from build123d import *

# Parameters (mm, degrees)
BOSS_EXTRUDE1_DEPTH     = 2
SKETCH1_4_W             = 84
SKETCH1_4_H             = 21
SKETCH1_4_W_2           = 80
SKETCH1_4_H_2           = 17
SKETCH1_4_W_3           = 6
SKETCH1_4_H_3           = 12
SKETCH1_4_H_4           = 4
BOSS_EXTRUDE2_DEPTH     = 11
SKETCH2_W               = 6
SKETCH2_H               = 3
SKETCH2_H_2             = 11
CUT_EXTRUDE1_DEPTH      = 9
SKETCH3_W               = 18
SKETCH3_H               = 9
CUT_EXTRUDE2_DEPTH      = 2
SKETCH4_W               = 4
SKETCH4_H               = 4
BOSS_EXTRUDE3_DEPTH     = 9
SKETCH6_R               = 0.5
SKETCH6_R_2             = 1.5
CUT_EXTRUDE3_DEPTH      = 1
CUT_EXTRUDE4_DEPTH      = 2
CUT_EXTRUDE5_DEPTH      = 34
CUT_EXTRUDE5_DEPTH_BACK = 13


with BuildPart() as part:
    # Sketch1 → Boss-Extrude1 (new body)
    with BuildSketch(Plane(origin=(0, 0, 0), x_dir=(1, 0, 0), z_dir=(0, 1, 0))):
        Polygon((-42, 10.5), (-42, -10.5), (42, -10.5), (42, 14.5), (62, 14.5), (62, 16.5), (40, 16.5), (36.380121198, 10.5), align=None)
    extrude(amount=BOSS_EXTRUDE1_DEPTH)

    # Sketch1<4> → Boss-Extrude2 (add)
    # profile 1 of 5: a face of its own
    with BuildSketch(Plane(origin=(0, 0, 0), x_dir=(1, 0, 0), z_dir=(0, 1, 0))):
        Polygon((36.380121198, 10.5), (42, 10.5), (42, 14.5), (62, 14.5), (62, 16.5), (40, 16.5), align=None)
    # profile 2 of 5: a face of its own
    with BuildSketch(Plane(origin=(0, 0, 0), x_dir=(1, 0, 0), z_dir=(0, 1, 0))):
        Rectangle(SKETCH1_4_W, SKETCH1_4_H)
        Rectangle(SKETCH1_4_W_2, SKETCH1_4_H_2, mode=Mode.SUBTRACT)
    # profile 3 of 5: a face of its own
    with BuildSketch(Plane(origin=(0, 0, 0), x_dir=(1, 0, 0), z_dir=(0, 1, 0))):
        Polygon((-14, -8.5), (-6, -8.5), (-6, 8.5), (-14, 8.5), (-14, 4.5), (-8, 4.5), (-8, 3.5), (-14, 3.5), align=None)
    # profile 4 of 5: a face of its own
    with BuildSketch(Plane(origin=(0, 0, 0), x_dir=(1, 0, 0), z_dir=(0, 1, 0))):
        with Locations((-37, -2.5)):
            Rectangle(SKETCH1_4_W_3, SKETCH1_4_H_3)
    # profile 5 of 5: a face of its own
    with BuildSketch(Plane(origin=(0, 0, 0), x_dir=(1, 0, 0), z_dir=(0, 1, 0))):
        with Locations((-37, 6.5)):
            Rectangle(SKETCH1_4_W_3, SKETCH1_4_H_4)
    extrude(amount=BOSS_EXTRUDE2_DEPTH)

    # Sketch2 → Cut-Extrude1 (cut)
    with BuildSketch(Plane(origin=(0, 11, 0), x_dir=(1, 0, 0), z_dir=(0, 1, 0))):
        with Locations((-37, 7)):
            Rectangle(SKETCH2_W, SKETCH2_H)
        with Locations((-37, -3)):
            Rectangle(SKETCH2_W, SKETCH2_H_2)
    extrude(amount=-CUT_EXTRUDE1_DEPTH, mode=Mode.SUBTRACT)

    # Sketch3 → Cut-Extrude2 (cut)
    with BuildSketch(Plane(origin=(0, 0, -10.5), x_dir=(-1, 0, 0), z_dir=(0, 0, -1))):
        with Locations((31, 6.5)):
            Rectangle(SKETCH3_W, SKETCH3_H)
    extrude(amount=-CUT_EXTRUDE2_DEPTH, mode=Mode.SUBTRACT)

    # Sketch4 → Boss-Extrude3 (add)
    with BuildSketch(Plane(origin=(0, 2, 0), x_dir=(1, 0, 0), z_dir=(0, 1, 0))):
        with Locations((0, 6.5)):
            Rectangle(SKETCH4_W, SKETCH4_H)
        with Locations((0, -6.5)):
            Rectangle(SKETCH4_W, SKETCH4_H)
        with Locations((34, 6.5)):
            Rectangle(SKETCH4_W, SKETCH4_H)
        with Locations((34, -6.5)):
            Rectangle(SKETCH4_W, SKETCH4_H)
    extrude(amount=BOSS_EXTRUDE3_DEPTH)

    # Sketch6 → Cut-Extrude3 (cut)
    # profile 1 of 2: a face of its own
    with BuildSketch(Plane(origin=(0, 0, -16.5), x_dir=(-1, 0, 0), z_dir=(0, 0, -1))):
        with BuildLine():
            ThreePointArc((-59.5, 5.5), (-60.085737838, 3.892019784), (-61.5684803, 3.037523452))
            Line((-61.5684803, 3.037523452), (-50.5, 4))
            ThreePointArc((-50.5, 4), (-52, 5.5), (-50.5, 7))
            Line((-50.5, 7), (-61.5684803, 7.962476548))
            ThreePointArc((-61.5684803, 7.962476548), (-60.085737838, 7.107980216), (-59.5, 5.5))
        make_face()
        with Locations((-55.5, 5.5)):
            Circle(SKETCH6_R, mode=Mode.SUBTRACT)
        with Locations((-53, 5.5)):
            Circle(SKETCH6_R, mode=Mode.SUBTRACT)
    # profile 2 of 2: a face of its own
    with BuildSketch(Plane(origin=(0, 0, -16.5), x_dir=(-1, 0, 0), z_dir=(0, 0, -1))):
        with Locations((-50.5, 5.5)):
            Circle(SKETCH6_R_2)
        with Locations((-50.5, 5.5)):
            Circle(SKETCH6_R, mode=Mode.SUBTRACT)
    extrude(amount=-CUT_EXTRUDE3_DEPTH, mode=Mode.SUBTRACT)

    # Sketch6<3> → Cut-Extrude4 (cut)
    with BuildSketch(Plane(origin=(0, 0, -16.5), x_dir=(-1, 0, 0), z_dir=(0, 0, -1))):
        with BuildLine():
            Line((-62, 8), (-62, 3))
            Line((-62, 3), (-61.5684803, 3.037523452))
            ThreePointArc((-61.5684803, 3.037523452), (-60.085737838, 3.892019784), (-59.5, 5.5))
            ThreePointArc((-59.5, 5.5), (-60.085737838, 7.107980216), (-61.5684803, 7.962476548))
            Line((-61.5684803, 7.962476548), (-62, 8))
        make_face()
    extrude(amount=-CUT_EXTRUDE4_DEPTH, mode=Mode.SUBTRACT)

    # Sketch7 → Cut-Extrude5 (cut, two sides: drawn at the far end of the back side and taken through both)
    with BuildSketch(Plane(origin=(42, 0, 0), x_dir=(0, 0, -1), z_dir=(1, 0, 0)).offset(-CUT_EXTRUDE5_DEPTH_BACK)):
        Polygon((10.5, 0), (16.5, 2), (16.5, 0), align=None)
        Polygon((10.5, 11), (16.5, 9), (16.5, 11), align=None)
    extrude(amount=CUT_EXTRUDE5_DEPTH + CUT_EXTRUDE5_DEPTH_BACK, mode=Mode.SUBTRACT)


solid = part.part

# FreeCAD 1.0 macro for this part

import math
import FreeCAD as App
import Part
import Sketcher

V = App.Vector
Q = App.Units.Quantity


def add_polygon(sketch, points):
    """Adds a closed chain of lines whose ends are joined by coincident constraints."""
    first, n = sketch.GeometryCount, len(points)
    for a, b in zip(points, points[1:] + points[:1]):
        sketch.addGeometry(Part.LineSegment(App.Vector(*a, 0), App.Vector(*b, 0)), False)
    for i in range(n):
        sketch.addConstraint(Sketcher.Constraint("Coincident", first + i, 2, first + (i + 1) % n, 1))

doc = App.newDocument("Part")
params = doc.addObject("Spreadsheet::Sheet", "Params")
for row, (alias, value) in enumerate([
    ("sketch1_width", "84 mm"),
    ("sketch1_width2", "20 mm"),
    ("sketch1_width3", "22 mm"),
    ("sketch1_height", "21 mm"),
    ("sketch1_height2", "25 mm"),
    ("pad1_length", "2 mm"),
    ("sketch2_width", "20 mm"),
    ("sketch2_width2", "22 mm"),
    ("sketch2_width3", "84 mm"),
    ("sketch2_width4", "6 mm"),
    ("sketch2_width5", "46 mm"),
    ("pad2_length", "11 mm"),
    ("sketch3_width", "6 mm"),
    ("sketch3_height", "3 mm"),
    ("sketch3_height2", "11 mm"),
    ("pocket1_length", "9 mm"),
    ("sketch4_width", "18 mm"),
    ("sketch4_height", "9 mm"),
    ("pocket2_length", "2 mm"),
    ("sketch5_width", "4 mm"),
    ("pad3_length", "9 mm"),
    ("sketch6_diameter", "1 mm"),
    ("sketch6_radius", "2.5 mm"),
    ("sketch6_radius2", "1.5 mm"),
    ("pocket3_length", "1 mm"),
    ("sketch7_radius", "2.5 mm"),
    ("sketch7_height", "5 mm"),
    ("pocket4_length", "2 mm"),
    ("sketch8_width", "2 mm"),
    ("sketch8_height", "6 mm"),
], start=1):
    params.set(f"A{row}", alias)
    params.set(f"B{row}", "=" + value)
    params.setAlias(f"B{row}", alias)

body = doc.addObject("PartDesign::Body", "Body")

# Sketch on XZ plane
sketch1 = body.newObject("Sketcher::SketchObject", "Sketch")
sketch1.AttachmentSupport = (doc.getObject("XZ_Plane"), [""])
sketch1.MapMode = "FlatFace"
add_polygon(sketch1, [(-42, -10.5), (-42, 10.5), (42, 10.5), (42, -14.5), (62, -14.5), (62, -16.5), (40, -16.5), (36.4, -10.5)])  # lines 0-7
sketch1.addConstraint(Sketcher.Constraint("Vertical", 0))
sketch1.addConstraint(Sketcher.Constraint("Horizontal", 1))
sketch1.addConstraint(Sketcher.Constraint("Vertical", 2))
sketch1.addConstraint(Sketcher.Constraint("Horizontal", 3))
sketch1.addConstraint(Sketcher.Constraint("Vertical", 4))
sketch1.addConstraint(Sketcher.Constraint("Horizontal", 5))
sketch1.addConstraint(Sketcher.Constraint("Horizontal", 7))
sketch1.addConstraint(Sketcher.Constraint("Symmetric", 1, 2, 7, 2, -1, 1))
sketch1.addConstraint(Sketcher.Constraint("DistanceX", 1, 1, 1, 2, Q("84 mm")))
sketch1.addConstraint(Sketcher.Constraint("DistanceX", 3, 1, 3, 2, Q("20 mm")))
sketch1.addConstraint(Sketcher.Constraint("DistanceX", 5, 2, 5, 1, Q("22 mm")))
sketch1.addConstraint(Sketcher.Constraint("DistanceY", 0, 1, 0, 2, Q("21 mm")))
sketch1.addConstraint(Sketcher.Constraint("DistanceY", 2, 2, 2, 1, Q("25 mm")))
sketch1.addConstraint(Sketcher.Constraint("DistanceY", 4, 2, 4, 1, Q("2 mm")))
sketch1.addConstraint(Sketcher.Constraint("DistanceX", 7, 2, 7, 1, Q("78.380121 mm")))
sketch1.setExpression("Constraints[16]", "Params.sketch1_width")
sketch1.setExpression("Constraints[17]", "Params.sketch1_width2")
sketch1.setExpression("Constraints[18]", "Params.sketch1_width3")
sketch1.setExpression("Constraints[19]", "Params.sketch1_height")
sketch1.setExpression("Constraints[20]", "Params.sketch1_height2")
pad1 = body.newObject("PartDesign::Pad", "Pad")
pad1.Profile = sketch1
pad1.setExpression("Length", "Params.pad1_length")
pad1.Reversed = True

# Sketch on XZ plane
sketch2 = body.newObject("Sketcher::SketchObject", "Sketch001")
sketch2.AttachmentSupport = (doc.getObject("XZ_Plane"), [""])
sketch2.MapMode = "FlatFace"
add_polygon(sketch2, [(42, -14.5), (62, -14.5), (62, -16.5), (40, -16.5), (36.4, -10.5), (-42, -10.5), (-42, 10.5), (42, 10.5)])  # lines 0-7
add_polygon(sketch2, [(-14, 8.5), (-34, 8.5), (-34, -3.5), (-40, -3.5), (-40, -4.5), (-34, -4.5), (-34, -8.5), (-14, -8.5), (-14, -4.5), (-8, -4.5), (-8, -3.5), (-14, -3.5)])  # lines 8-19
add_polygon(sketch2, [(40, 8.5), (-6, 8.5), (-6, -8.5), (40, -8.5)])  # lines 20-23
sketch2.addConstraint(Sketcher.Constraint("Horizontal", 0))
sketch2.addConstraint(Sketcher.Constraint("Vertical", 1))
sketch2.addConstraint(Sketcher.Constraint("Horizontal", 2))
sketch2.addConstraint(Sketcher.Constraint("Horizontal", 4))
sketch2.addConstraint(Sketcher.Constraint("Vertical", 5))
sketch2.addConstraint(Sketcher.Constraint("Horizontal", 6))
sketch2.addConstraint(Sketcher.Constraint("Vertical", 7))
sketch2.addConstraint(Sketcher.Constraint("Horizontal", 8))
sketch2.addConstraint(Sketcher.Constraint("Vertical", 9))
sketch2.addConstraint(Sketcher.Constraint("Horizontal", 10))
sketch2.addConstraint(Sketcher.Constraint("Vertical", 11))
sketch2.addConstraint(Sketcher.Constraint("Horizontal", 12))
sketch2.addConstraint(Sketcher.Constraint("Vertical", 13))
sketch2.addConstraint(Sketcher.Constraint("Horizontal", 14))
sketch2.addConstraint(Sketcher.Constraint("Vertical", 15))
sketch2.addConstraint(Sketcher.Constraint("Horizontal", 16))
sketch2.addConstraint(Sketcher.Constraint("Vertical", 17))
sketch2.addConstraint(Sketcher.Constraint("Horizontal", 18))
sketch2.addConstraint(Sketcher.Constraint("Vertical", 19))
sketch2.addConstraint(Sketcher.Constraint("Horizontal", 20))
sketch2.addConstraint(Sketcher.Constraint("Vertical", 21))
sketch2.addConstraint(Sketcher.Constraint("Horizontal", 22))
sketch2.addConstraint(Sketcher.Constraint("Vertical", 23))
sketch2.addConstraint(Sketcher.Constraint("Symmetric", 4, 2, 6, 2, -1, 1))
sketch2.addConstraint(Sketcher.Constraint("Symmetric", 8, 2, 13, 2, -1))
sketch2.addConstraint(Sketcher.Constraint("Horizontal", 12, 2, 15, 2))
sketch2.addConstraint(Sketcher.Constraint("Horizontal", 10, 2, 17, 2))
sketch2.addConstraint(Sketcher.Constraint("Horizontal", 19, 2, 20, 2))
sketch2.addConstraint(Sketcher.Constraint("Horizontal", 14, 2, 21, 2))
sketch2.addConstraint(Sketcher.Constraint("Vertical", 15, 2, 18, 2))
sketch2.addConstraint(Sketcher.Constraint("Vertical", 2, 2, 22, 2))
sketch2.addConstraint(Sketcher.Constraint("Equal", 0, 8))
sketch2.addConstraint(Sketcher.Constraint("Equal", 12, 16))
sketch2.addConstraint(Sketcher.Constraint("DistanceX", 0, 1, 0, 2, Q("20 mm")))
sketch2.addConstraint(Sketcher.Constraint("DistanceX", 2, 2, 2, 1, Q("22 mm")))
sketch2.addConstraint(Sketcher.Constraint("DistanceX", 6, 1, 6, 2, Q("84 mm")))
sketch2.addConstraint(Sketcher.Constraint("DistanceX", 10, 2, 10, 1, Q("6 mm")))
sketch2.addConstraint(Sketcher.Constraint("DistanceX", 20, 2, 20, 1, Q("46 mm")))
sketch2.addConstraint(Sketcher.Constraint("DistanceY", 1, 2, 1, 1, Q("2 mm")))
sketch2.addConstraint(Sketcher.Constraint("DistanceY", 5, 1, 5, 2, Q("21 mm")))
sketch2.addConstraint(Sketcher.Constraint("DistanceY", 7, 2, 7, 1, Q("25 mm")))
sketch2.addConstraint(Sketcher.Constraint("DistanceY", 9, 2, 9, 1, Q("12 mm")))
sketch2.addConstraint(Sketcher.Constraint("DistanceY", 11, 2, 11, 1, Q("1 mm")))
sketch2.addConstraint(Sketcher.Constraint("DistanceY", 13, 2, 13, 1, Q("4 mm")))
sketch2.addConstraint(Sketcher.Constraint("DistanceX", 8, 2, -1, 1, Q("34 mm")))
sketch2.addConstraint(Sketcher.Constraint("DistanceX", 4, 2, 4, 1, Q("78.380121 mm")))
sketch2.setExpression("Constraints[57]", "Params.sketch2_width")
sketch2.setExpression("Constraints[58]", "Params.sketch2_width2")
sketch2.setExpression("Constraints[59]", "Params.sketch2_width3")
sketch2.setExpression("Constraints[60]", "Params.sketch2_width4")
sketch2.setExpression("Constraints[61]", "Params.sketch2_width5")
pad2 = body.newObject("PartDesign::Pad", "Pad001")
pad2.Profile = sketch2
pad2.setExpression("Length", "Params.pad2_length")
pad2.Reversed = True

# Sketch on XZ plane
sketch3 = body.newObject("Sketcher::SketchObject", "Sketch002")
sketch3.AttachmentSupport = (doc.getObject("XZ_Plane"), [""])
sketch3.MapMode = "FlatFace"
sketch3.AttachmentOffset = App.Placement(V(0, 0, -11), App.Rotation())
add_polygon(sketch3, [(-40, -8.5), (-40, -5.5), (-34, -5.5), (-34, -8.5)])  # lines 0-3
add_polygon(sketch3, [(-40, -2.5), (-40, 8.5), (-34, 8.5), (-34, -2.5)])  # lines 4-7
sketch3.addConstraint(Sketcher.Constraint("Vertical", 0))
sketch3.addConstraint(Sketcher.Constraint("Horizontal", 1))
sketch3.addConstraint(Sketcher.Constraint("Vertical", 2))
sketch3.addConstraint(Sketcher.Constraint("Horizontal", 3))
sketch3.addConstraint(Sketcher.Constraint("Vertical", 4))
sketch3.addConstraint(Sketcher.Constraint("Horizontal", 5))
sketch3.addConstraint(Sketcher.Constraint("Vertical", 6))
sketch3.addConstraint(Sketcher.Constraint("Horizontal", 7))
sketch3.addConstraint(Sketcher.Constraint("Symmetric", 3, 2, 4, 2, -1))
sketch3.addConstraint(Sketcher.Constraint("Vertical", 2, 2, 5, 2))
sketch3.addConstraint(Sketcher.Constraint("DistanceX", 1, 1, 1, 2, Q("6 mm")))
sketch3.addConstraint(Sketcher.Constraint("DistanceY", 0, 1, 0, 2, Q("3 mm")))
sketch3.addConstraint(Sketcher.Constraint("DistanceY", 4, 1, 4, 2, Q("11 mm")))
sketch3.addConstraint(Sketcher.Constraint("DistanceX", 0, 2, -1, 1, Q("40 mm")))
sketch3.addConstraint(Sketcher.Constraint("DistanceY", 0, 2, 4, 2, Q("14 mm")))
sketch3.setExpression("Constraints[18]", "Params.sketch3_width")
sketch3.setExpression("Constraints[19]", "Params.sketch3_height")
sketch3.setExpression("Constraints[20]", "Params.sketch3_height2")
pocket1 = body.newObject("PartDesign::Pocket", "Pocket")
pocket1.Profile = sketch3
pocket1.setExpression("Length", "Params.pocket1_length")
pocket1.Reversed = True

# Sketch on XY plane
sketch4 = body.newObject("Sketcher::SketchObject", "Sketch003")
sketch4.AttachmentSupport = (doc.getObject("XY_Plane"), [""])
sketch4.MapMode = "FlatFace"
sketch4.AttachmentOffset = App.Placement(V(0, 0, -10.5), App.Rotation())
add_polygon(sketch4, [(-22, 11), (-22, 2), (-40, 2), (-40, 11)])  # lines 0-3
sketch4.addConstraint(Sketcher.Constraint("Vertical", 0))
sketch4.addConstraint(Sketcher.Constraint("Horizontal", 1))
sketch4.addConstraint(Sketcher.Constraint("Vertical", 2))
sketch4.addConstraint(Sketcher.Constraint("Horizontal", 3))
sketch4.addConstraint(Sketcher.Constraint("DistanceX", 1, 2, 1, 1, Q("18 mm")))
sketch4.addConstraint(Sketcher.Constraint("DistanceY", 0, 2, 0, 1, Q("9 mm")))
sketch4.addConstraint(Sketcher.Constraint("DistanceX", 0, 2, -1, 1, Q("22 mm")))
sketch4.addConstraint(Sketcher.Constraint("DistanceY", -1, 1, 0, 2, Q("2 mm")))
sketch4.setExpression("Constraints[8]", "Params.sketch4_width")
sketch4.setExpression("Constraints[9]", "Params.sketch4_height")
pocket2 = body.newObject("PartDesign::Pocket", "Pocket001")
pocket2.Profile = sketch4
pocket2.setExpression("Length", "Params.pocket2_length")
pocket2.Reversed = True

# Sketch on XZ plane
sketch5 = body.newObject("Sketcher::SketchObject", "Sketch004")
sketch5.AttachmentSupport = (doc.getObject("XZ_Plane"), [""])
sketch5.MapMode = "FlatFace"
sketch5.AttachmentOffset = App.Placement(V(0, 0, -2), App.Rotation())
add_polygon(sketch5, [(-2, -8.5), (-2, -4.5), (2, -4.5), (2, -8.5)])  # lines 0-3
add_polygon(sketch5, [(-2, 4.5), (-2, 8.5), (2, 8.5), (2, 4.5)])  # lines 4-7
add_polygon(sketch5, [(32, -8.5), (32, -4.5), (36, -4.5), (36, -8.5)])  # lines 8-11
add_polygon(sketch5, [(32, 4.5), (32, 8.5), (36, 8.5), (36, 4.5)])  # lines 12-15
sketch5.addConstraint(Sketcher.Constraint("Vertical", 0))
sketch5.addConstraint(Sketcher.Constraint("Horizontal", 1))
sketch5.addConstraint(Sketcher.Constraint("Vertical", 2))
sketch5.addConstraint(Sketcher.Constraint("Horizontal", 3))
sketch5.addConstraint(Sketcher.Constraint("Vertical", 4))
sketch5.addConstraint(Sketcher.Constraint("Horizontal", 5))
sketch5.addConstraint(Sketcher.Constraint("Vertical", 6))
sketch5.addConstraint(Sketcher.Constraint("Horizontal", 7))
sketch5.addConstraint(Sketcher.Constraint("Vertical", 8))
sketch5.addConstraint(Sketcher.Constraint("Horizontal", 9))
sketch5.addConstraint(Sketcher.Constraint("Vertical", 10))
sketch5.addConstraint(Sketcher.Constraint("Horizontal", 11))
sketch5.addConstraint(Sketcher.Constraint("Vertical", 12))
sketch5.addConstraint(Sketcher.Constraint("Horizontal", 13))
sketch5.addConstraint(Sketcher.Constraint("Vertical", 14))
sketch5.addConstraint(Sketcher.Constraint("Horizontal", 15))
sketch5.addConstraint(Sketcher.Constraint("Symmetric", 2, 2, 4, 2, -1, 1))
sketch5.addConstraint(Sketcher.Constraint("Symmetric", 0, 2, 6, 2, -1, 1))
sketch5.addConstraint(Sketcher.Constraint("Symmetric", 11, 2, 12, 2, -1))
sketch5.addConstraint(Sketcher.Constraint("Symmetric", 9, 2, 14, 2, -1))
sketch5.addConstraint(Sketcher.Constraint("Horizontal", 1, 2, 8, 2))
sketch5.addConstraint(Sketcher.Constraint("Horizontal", 3, 2, 10, 2))
sketch5.addConstraint(Sketcher.Constraint("Vertical", 3, 2, 4, 2))
sketch5.addConstraint(Sketcher.Constraint("Equal", 7, 9))
sketch5.addConstraint(Sketcher.Constraint("Equal", 15, 0))
sketch5.addConstraint(Sketcher.Constraint("DistanceX", 1, 1, 1, 2, Q("4 mm")))
sketch5.addConstraint(Sketcher.Constraint("DistanceX", -1, 1, 8, 2, Q("32 mm")))
sketch5.addConstraint(Sketcher.Constraint("DistanceY", 0, 2, 4, 2, Q("13 mm")))
sketch5.setExpression("Constraints[41]", "Params.sketch5_width")
pad3 = body.newObject("PartDesign::Pad", "Pad002")
pad3.Profile = sketch5
pad3.setExpression("Length", "Params.pad3_length")
pad3.Reversed = True

# Sketch on XY plane
sketch6 = body.newObject("Sketcher::SketchObject", "Sketch005")
sketch6.AttachmentSupport = (doc.getObject("XY_Plane"), [""])
sketch6.MapMode = "FlatFace"
sketch6.AttachmentOffset = App.Placement(V(0, 0, -16.5), App.Rotation())
sketch6.addGeometry(Part.ArcOfCircle(Part.Circle(V(62, 5.5, 0), V(0, 0, 1), 2.5), math.radians(180), math.radians(260)), False)
sketch6.addGeometry(Part.LineSegment(V(61.6, 3, 0), V(50.5, 4, 0)), False)
sketch6.addGeometry(Part.ArcOfCircle(Part.Circle(V(50.5, 5.5, 0), V(0, 0, 1), 1.5), math.radians(90), math.radians(270)), False)
sketch6.addGeometry(Part.LineSegment(V(50.5, 7, 0), V(61.6, 8, 0)), False)
sketch6.addGeometry(Part.ArcOfCircle(Part.Circle(V(62, 5.5, 0), V(0, 0, 1), 2.5), math.radians(100), math.radians(180)), False)
sketch6.addGeometry(Part.Circle(V(55.5, 5.5, 0), V(0, 0, 1), 0.5), False)
sketch6.addGeometry(Part.Circle(V(53, 5.5, 0), V(0, 0, 1), 0.5), False)
sketch6.addGeometry(Part.Circle(V(50.5, 5.5, 0), V(0, 0, 1), 0.5), False)
sketch6.addConstraint(Sketcher.Constraint("Coincident", 0, 2, 1, 1))
sketch6.addConstraint(Sketcher.Constraint("Coincident", 1, 2, 2, 2))
sketch6.addConstraint(Sketcher.Constraint("Coincident", 2, 1, 3, 1))
sketch6.addConstraint(Sketcher.Constraint("Coincident", 3, 2, 4, 1))
sketch6.addConstraint(Sketcher.Constraint("Tangent", 4, 2, 0, 1))
sketch6.addConstraint(Sketcher.Constraint("Coincident", 7, 3, 2, 3))
sketch6.addConstraint(Sketcher.Constraint("Equal", 0, 4))
sketch6.addConstraint(Sketcher.Constraint("Equal", 5, 6))
sketch6.addConstraint(Sketcher.Constraint("Equal", 6, 7))
sketch6.addConstraint(Sketcher.Constraint("Horizontal", 0, 3, 2, 3))
sketch6.addConstraint(Sketcher.Constraint("Horizontal", 4, 3, 5, 3))
sketch6.addConstraint(Sketcher.Constraint("Horizontal", 5, 3, 6, 3))
sketch6.addConstraint(Sketcher.Constraint("Horizontal", 7, 3, 4, 2))
sketch6.addConstraint(Sketcher.Constraint("Vertical", 7, 3, 1, 2))
sketch6.addConstraint(Sketcher.Constraint("Vertical", 1, 2, 2, 1))
sketch6.addConstraint(Sketcher.Constraint("Vertical", 0, 2, 3, 2))
sketch6.addConstraint(Sketcher.Constraint("Diameter", 5, Q("1 mm")))
sketch6.addConstraint(Sketcher.Constraint("Radius", 0, Q("2.5 mm")))
sketch6.addConstraint(Sketcher.Constraint("Radius", 2, Q("1.5 mm")))
sketch6.addConstraint(Sketcher.Constraint("DistanceX", -1, 1, 0, 3, Q("62 mm")))
sketch6.addConstraint(Sketcher.Constraint("DistanceX", -1, 1, 6, 3, Q("53 mm")))
sketch6.addConstraint(Sketcher.Constraint("DistanceY", -1, 1, 1, 2, Q("4 mm")))
sketch6.addConstraint(Sketcher.Constraint("DistanceX", 2, 3, 5, 3, Q("5 mm")))
sketch6.addConstraint(Sketcher.Constraint("DistanceX", 5, 3, 4, 2, Q("4 mm")))
sketch6.addConstraint(Sketcher.Constraint("Distance", 1, Q("11.110248 mm")))
sketch6.setExpression("Constraints[16]", "Params.sketch6_diameter")
sketch6.setExpression("Constraints[17]", "Params.sketch6_radius")
sketch6.setExpression("Constraints[18]", "Params.sketch6_radius2")
pocket3 = body.newObject("PartDesign::Pocket", "Pocket002")
pocket3.Profile = sketch6
pocket3.setExpression("Length", "Params.pocket3_length")
pocket3.Reversed = True

# Sketch on XY plane
sketch7 = body.newObject("Sketcher::SketchObject", "Sketch006")
sketch7.AttachmentSupport = (doc.getObject("XY_Plane"), [""])
sketch7.MapMode = "FlatFace"
sketch7.AttachmentOffset = App.Placement(V(0, 0, -16.5), App.Rotation())
sketch7.addGeometry(Part.LineSegment(V(62, 8, 0), V(62, 3, 0)), False)
sketch7.addGeometry(Part.LineSegment(V(62, 3, 0), V(61.57, 3.04, 0)), False)
sketch7.addGeometry(Part.ArcOfCircle(Part.Circle(V(62, 5.5, 0), V(0, 0, 1), 2.5), math.radians(180), math.radians(260)), False)
sketch7.addGeometry(Part.ArcOfCircle(Part.Circle(V(62, 5.5, 0), V(0, 0, 1), 2.5), math.radians(100), math.radians(180)), False)
sketch7.addGeometry(Part.LineSegment(V(61.57, 7.96, 0), V(62, 8, 0)), False)
sketch7.addConstraint(Sketcher.Constraint("Coincident", 0, 2, 1, 1))
sketch7.addConstraint(Sketcher.Constraint("Coincident", 1, 2, 2, 2))
sketch7.addConstraint(Sketcher.Constraint("Tangent", 2, 1, 3, 2))
sketch7.addConstraint(Sketcher.Constraint("Coincident", 3, 1, 4, 1))
sketch7.addConstraint(Sketcher.Constraint("Coincident", 4, 2, 0, 1))
sketch7.addConstraint(Sketcher.Constraint("Vertical", 0))
sketch7.addConstraint(Sketcher.Constraint("Equal", 2, 3))
sketch7.addConstraint(Sketcher.Constraint("Horizontal", 3, 3, 2, 1))
sketch7.addConstraint(Sketcher.Constraint("Vertical", 3, 3, 0, 2))
sketch7.addConstraint(Sketcher.Constraint("Vertical", 1, 2, 3, 1))
sketch7.addConstraint(Sketcher.Constraint("Equal", 1, 4))
sketch7.addConstraint(Sketcher.Constraint("Radius", 2, Q("2.5 mm")))
sketch7.addConstraint(Sketcher.Constraint("DistanceY", 0, 2, 0, 1, Q("5 mm")))
sketch7.addConstraint(Sketcher.Constraint("DistanceX", -1, 1, 2, 3, Q("62 mm")))
sketch7.addConstraint(Sketcher.Constraint("DistanceY", -1, 1, 0, 2, Q("3 mm")))
sketch7.addConstraint(Sketcher.Constraint("Distance", 1, Q("0.433148 mm")))
sketch7.setExpression("Constraints[11]", "Params.sketch7_radius")
sketch7.setExpression("Constraints[12]", "Params.sketch7_height")
pocket4 = body.newObject("PartDesign::Pocket", "Pocket003")
pocket4.Profile = sketch7
pocket4.setExpression("Length", "Params.pocket4_length")
pocket4.Reversed = True

# Sketch on YZ plane
sketch8 = body.newObject("Sketcher::SketchObject", "Sketch007")
sketch8.AttachmentSupport = (doc.getObject("YZ_Plane"), [""])
sketch8.MapMode = "FlatFace"
sketch8.AttachmentOffset = App.Placement(V(0, 0, 42), App.Rotation())
add_polygon(sketch8, [(2, -16.5), (0, -10.5), (0, -16.5)])  # lines 0-2
add_polygon(sketch8, [(11, -10.5), (9, -16.5), (11, -16.5)])  # lines 3-5
sketch8.addConstraint(Sketcher.Constraint("Vertical", 1))
sketch8.addConstraint(Sketcher.Constraint("Horizontal", 2))
sketch8.addConstraint(Sketcher.Constraint("Horizontal", 4))
sketch8.addConstraint(Sketcher.Constraint("Vertical", 5))
sketch8.addConstraint(Sketcher.Constraint("PointOnObject", 0, 2, -2))
sketch8.addConstraint(Sketcher.Constraint("Horizontal", 2, 2, 3, 2))
sketch8.addConstraint(Sketcher.Constraint("Horizontal", 0, 2, 5, 2))
sketch8.addConstraint(Sketcher.Constraint("Equal", 2, 4))
sketch8.addConstraint(Sketcher.Constraint("DistanceX", 2, 1, 2, 2, Q("2 mm")))
sketch8.addConstraint(Sketcher.Constraint("DistanceY", 1, 2, 1, 1, Q("6 mm")))
sketch8.addConstraint(Sketcher.Constraint("DistanceX", -1, 1, 3, 2, Q("9 mm")))
sketch8.addConstraint(Sketcher.Constraint("DistanceY", 0, 2, -1, 1, Q("10.5 mm")))
sketch8.setExpression("Constraints[14]", "Params.sketch8_width")
sketch8.setExpression("Constraints[15]", "Params.sketch8_height")
pocket5 = body.newObject("PartDesign::Pocket", "Pocket004")
pocket5.Profile = sketch8
pocket5.Type = "ThroughAll"
pocket5.Midplane = True

doc.recompute()
